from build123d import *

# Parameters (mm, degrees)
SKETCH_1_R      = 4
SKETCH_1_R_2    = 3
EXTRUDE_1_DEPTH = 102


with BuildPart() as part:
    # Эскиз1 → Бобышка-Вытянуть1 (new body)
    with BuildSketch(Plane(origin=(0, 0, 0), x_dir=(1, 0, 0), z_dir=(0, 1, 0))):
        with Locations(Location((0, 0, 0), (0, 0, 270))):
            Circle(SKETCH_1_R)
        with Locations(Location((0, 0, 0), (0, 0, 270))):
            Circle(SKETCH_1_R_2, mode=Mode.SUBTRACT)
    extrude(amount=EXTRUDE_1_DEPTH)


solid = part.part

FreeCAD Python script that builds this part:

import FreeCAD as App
import Part
import Sketcher
from FreeCAD import Vector
Q = App.Units.Quantity

doc = App.newDocument("Part")
params = doc.addObject("Spreadsheet::Sheet", "Params")
for row, (alias, value) in enumerate([
    ("sketch1_diameter", "8 mm"),
    ("sketch1_diameter2", "6 mm"),
    ("pad1_length", "102 mm"),
], start=1):
    params.set(f"A{row}", alias)
    params.set(f"B{row}", "=" + value)
    params.setAlias(f"B{row}", alias)

body = doc.addObject("PartDesign::Body", "Body")

sketch1 = body.newObject("Sketcher::SketchObject", "Sketch")
sketch1.AttachmentSupport = (doc.getObject("XZ_Plane"), [""])
sketch1.MapMode = "FlatFace"
sketch1.addGeometry(Part.Circle(Vector(0, 0, 0), Vector(0, 0, 1), 4), False)
sketch1.addGeometry(Part.Circle(Vector(0, 0, 0), Vector(0, 0, 1), 3), False)
sketch1.addConstraint(Sketcher.Constraint("Coincident", 0, 3, -1, 1))
sketch1.addConstraint(Sketcher.Constraint("Coincident", 1, 3, -1, 1))
sketch1.addConstraint(Sketcher.Constraint("Diameter", 0, Q("8 mm")))
sketch1.addConstraint(Sketcher.Constraint("Diameter", 1, Q("6 mm")))
sketch1.setExpression("Constraints[2]", "Params.sketch1_diameter")
sketch1.setExpression("Constraints[3]", "Params.sketch1_diameter2")
pad1 = body.newObject("PartDesign::Pad", "Pad")
pad1.Profile = sketch1
pad1.setExpression("Length", "Params.pad1_length")
pad1.Reversed = True

doc.recompute()
